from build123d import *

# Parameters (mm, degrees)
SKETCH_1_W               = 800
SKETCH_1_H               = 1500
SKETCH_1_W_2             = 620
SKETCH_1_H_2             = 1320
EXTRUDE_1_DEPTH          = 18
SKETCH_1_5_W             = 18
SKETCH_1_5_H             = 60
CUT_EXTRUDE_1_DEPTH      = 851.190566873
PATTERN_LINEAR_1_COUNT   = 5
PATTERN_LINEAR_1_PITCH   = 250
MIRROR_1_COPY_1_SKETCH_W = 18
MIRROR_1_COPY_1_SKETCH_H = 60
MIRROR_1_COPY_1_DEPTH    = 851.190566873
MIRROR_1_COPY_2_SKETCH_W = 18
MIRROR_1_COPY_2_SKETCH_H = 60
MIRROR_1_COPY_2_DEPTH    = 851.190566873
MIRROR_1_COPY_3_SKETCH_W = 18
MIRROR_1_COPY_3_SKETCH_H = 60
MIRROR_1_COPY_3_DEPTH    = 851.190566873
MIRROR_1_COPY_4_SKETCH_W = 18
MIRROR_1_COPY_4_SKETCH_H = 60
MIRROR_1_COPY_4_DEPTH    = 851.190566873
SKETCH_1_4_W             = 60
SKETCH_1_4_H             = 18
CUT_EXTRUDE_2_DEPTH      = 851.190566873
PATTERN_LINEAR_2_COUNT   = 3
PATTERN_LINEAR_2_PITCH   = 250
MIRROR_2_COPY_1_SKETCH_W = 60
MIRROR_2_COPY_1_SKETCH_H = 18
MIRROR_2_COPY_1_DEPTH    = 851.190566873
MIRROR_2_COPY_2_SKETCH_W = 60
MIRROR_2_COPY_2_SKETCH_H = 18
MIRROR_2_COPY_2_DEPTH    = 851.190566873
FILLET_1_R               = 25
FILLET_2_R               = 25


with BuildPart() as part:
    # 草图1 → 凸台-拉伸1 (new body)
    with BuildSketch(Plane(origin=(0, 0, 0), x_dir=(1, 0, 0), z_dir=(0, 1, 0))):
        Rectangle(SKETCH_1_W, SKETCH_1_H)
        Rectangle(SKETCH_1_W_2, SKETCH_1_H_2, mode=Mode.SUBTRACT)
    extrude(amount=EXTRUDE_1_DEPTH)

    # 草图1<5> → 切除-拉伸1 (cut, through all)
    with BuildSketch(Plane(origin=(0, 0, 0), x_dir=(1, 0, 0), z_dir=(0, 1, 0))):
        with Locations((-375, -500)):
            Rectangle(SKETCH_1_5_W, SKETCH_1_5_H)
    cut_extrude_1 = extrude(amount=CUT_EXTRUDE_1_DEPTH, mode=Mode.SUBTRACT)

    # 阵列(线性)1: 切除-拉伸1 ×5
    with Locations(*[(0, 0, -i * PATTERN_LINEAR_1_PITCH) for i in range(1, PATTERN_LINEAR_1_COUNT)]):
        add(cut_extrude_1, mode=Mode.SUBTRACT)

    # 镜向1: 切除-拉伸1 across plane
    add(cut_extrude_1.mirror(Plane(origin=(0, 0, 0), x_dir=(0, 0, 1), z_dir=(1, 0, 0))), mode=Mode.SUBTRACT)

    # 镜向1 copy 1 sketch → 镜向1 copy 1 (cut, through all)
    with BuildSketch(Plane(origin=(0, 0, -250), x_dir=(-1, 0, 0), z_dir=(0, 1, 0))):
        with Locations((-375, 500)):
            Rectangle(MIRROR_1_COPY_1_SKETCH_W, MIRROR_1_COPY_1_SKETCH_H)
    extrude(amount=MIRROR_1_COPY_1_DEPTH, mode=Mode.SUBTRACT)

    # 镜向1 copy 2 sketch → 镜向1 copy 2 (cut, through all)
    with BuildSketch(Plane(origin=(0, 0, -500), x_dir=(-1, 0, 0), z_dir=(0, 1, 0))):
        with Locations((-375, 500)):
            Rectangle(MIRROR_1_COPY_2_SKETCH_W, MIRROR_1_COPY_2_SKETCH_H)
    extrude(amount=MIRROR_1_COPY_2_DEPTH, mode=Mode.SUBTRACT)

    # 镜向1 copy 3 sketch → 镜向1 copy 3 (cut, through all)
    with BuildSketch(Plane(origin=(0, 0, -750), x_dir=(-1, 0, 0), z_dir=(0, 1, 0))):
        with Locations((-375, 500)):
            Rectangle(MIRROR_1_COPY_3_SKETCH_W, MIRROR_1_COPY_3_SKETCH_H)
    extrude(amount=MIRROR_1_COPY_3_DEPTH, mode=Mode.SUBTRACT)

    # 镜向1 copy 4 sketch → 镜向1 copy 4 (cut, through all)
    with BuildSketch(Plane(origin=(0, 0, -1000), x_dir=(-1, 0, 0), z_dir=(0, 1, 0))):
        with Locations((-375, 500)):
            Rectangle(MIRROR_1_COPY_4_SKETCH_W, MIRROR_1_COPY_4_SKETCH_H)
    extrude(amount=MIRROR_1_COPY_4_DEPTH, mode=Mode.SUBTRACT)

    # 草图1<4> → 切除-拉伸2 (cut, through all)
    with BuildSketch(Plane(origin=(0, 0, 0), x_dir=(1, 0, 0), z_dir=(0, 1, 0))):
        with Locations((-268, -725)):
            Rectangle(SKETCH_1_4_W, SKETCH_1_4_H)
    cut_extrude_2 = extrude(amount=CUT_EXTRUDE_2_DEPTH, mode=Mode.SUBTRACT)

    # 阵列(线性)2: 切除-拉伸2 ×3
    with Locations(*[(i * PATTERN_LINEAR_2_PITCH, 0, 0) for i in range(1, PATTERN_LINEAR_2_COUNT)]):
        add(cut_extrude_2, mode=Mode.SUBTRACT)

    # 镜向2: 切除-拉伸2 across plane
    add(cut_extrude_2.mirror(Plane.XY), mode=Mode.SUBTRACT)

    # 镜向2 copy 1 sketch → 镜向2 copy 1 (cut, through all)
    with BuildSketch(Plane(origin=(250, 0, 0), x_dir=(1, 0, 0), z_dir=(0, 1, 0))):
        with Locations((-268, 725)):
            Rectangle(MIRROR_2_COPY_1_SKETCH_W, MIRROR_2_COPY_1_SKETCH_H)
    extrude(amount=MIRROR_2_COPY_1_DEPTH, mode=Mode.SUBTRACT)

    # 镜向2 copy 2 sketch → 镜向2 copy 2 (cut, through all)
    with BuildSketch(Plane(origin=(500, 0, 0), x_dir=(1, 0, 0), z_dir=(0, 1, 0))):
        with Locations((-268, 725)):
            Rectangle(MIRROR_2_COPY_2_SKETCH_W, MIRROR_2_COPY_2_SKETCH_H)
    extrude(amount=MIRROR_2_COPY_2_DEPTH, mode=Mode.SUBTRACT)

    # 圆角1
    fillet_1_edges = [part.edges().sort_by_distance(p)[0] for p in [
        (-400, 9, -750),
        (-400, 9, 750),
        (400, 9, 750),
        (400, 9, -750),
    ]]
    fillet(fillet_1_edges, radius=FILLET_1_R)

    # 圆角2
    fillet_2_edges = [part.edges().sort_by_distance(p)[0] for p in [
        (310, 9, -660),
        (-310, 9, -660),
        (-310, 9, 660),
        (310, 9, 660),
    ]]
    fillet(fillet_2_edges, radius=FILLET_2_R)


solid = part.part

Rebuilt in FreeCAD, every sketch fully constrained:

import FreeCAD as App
import Part
import Sketcher
from FreeCAD import Vector


def edges_at(feature, points):
    """Names of the edges that pass closest to the given points."""
    edges = feature.Shape.Edges
    near = lambda p: min(range(len(edges)), key=lambda i: edges[i].distToShape(Part.Vertex(*p))[0])
    return sorted({f"Edge{near(p) + 1}" for p in points})

doc = App.newDocument("Part")
body = doc.addObject("PartDesign::Body", "Body")

sketch1 = body.newObject("Sketcher::SketchObject", "Sketch")
sketch1.AttachmentSupport = (doc.getObject("XZ_Plane"), [""])
sketch1.MapMode = "FlatFace"
sketch1.addGeometry([
    Part.LineSegment(Vector(-400, -750, 0), Vector(-400, 750, 0)),
    Part.LineSegment(Vector(-400, 750, 0), Vector(400, 750, 0)),
    Part.LineSegment(Vector(400, 750, 0), Vector(400, -750, 0)),
    Part.LineSegment(Vector(400, -750, 0), Vector(-400, -750, 0)),
    Part.LineSegment(Vector(310, 660, 0), Vector(-310, 660, 0)),
    Part.LineSegment(Vector(-310, 660, 0), Vector(-310, -660, 0)),
    Part.LineSegment(Vector(-310, -660, 0), Vector(310, -660, 0)),
    Part.LineSegment(Vector(310, -660, 0), Vector(310, 660, 0)),
], False)
sketch1.addConstraint([
    Sketcher.Constraint("Coincident", 0, 2, 1, 1),
    Sketcher.Constraint("Coincident", 1, 2, 2, 1),
    Sketcher.Constraint("Coincident", 2, 2, 3, 1),
    Sketcher.Constraint("Coincident", 3, 2, 0, 1),
    Sketcher.Constraint("Coincident", 4, 2, 5, 1),
    Sketcher.Constraint("Coincident", 5, 2, 6, 1),
    Sketcher.Constraint("Coincident", 6, 2, 7, 1),
    Sketcher.Constraint("Coincident", 7, 2, 4, 1),
    Sketcher.Constraint("Vertical", 0),
    Sketcher.Constraint("Horizontal", 1),
    Sketcher.Constraint("Vertical", 2),
    Sketcher.Constraint("Horizontal", 3),
    Sketcher.Constraint("Horizontal", 4),
    Sketcher.Constraint("Vertical", 5),
    Sketcher.Constraint("Horizontal", 6),
    Sketcher.Constraint("Vertical", 7),
    Sketcher.Constraint("Symmetric", 0, 2, 2, 2, -1, 1),
    Sketcher.Constraint("Symmetric", 4, 2, 6, 2, -1, 1),
    Sketcher.Constraint("DistanceX", 1, 1, 1, 2, 800.0),
    Sketcher.Constraint("DistanceX", 4, 2, 4, 1, 620.0),
    Sketcher.Constraint("DistanceY", 0, 1, 0, 2, 1500.0),
    Sketcher.Constraint("DistanceY", 5, 2, 5, 1, 1320.0),
])
pad1 = body.newObject("PartDesign::Pad", "Pad")
pad1.Profile = sketch1
pad1.Length = 18
pad1.Reversed = True

sketch2 = body.newObject("Sketcher::SketchObject", "Sketch001")
sketch2.AttachmentSupport = (doc.getObject("XZ_Plane"), [""])
sketch2.MapMode = "FlatFace"
sketch2.addGeometry([
    Part.LineSegment(Vector(-384, 470, 0), Vector(-384, 530, 0)),
    Part.LineSegment(Vector(-384, 530, 0), Vector(-366, 530, 0)),
    Part.LineSegment(Vector(-366, 530, 0), Vector(-366, 470, 0)),
    Part.LineSegment(Vector(-366, 470, 0), Vector(-384, 470, 0)),
], False)
sketch2.addConstraint([
    Sketcher.Constraint("Coincident", 0, 2, 1, 1),
    Sketcher.Constraint("Coincident", 1, 2, 2, 1),
    Sketcher.Constraint("Coincident", 2, 2, 3, 1),
    Sketcher.Constraint("Coincident", 3, 2, 0, 1),
    Sketcher.Constraint("Vertical", 0),
    Sketcher.Constraint("Horizontal", 1),
    Sketcher.Constraint("Vertical", 2),
    Sketcher.Constraint("Horizontal", 3),
    Sketcher.Constraint("DistanceX", 1, 1, 1, 2, 18.0),
    Sketcher.Constraint("DistanceY", 0, 1, 0, 2, 60.0),
    Sketcher.Constraint("DistanceX", 0, 2, -1, 1, 384.0),
    Sketcher.Constraint("DistanceY", -1, 1, 0, 2, 530.0),
])
pocket1 = body.newObject("PartDesign::Pocket", "Pocket")
pocket1.Profile = sketch2
pocket1.Type = "ThroughAll"
doc.recompute()

linearpattern = body.newObject("PartDesign::LinearPattern", "LinearPattern")
linearpattern.Originals = [pocket1]
linearpattern.Direction = (doc.getObject("Z_Axis"), [""])
linearpattern.Mode = "offset"
linearpattern.Offset = 250
linearpattern.Occurrences = 5
linearpattern.Reversed = True
body.Tip = linearpattern
doc.recompute()

mirrored = body.newObject("PartDesign::Mirrored", "Mirrored")
mirrored.Originals = [pocket1]
mirrored.MirrorPlane = (doc.getObject("YZ_Plane"), [""])
body.Tip = mirrored

sketch3 = body.newObject("Sketcher::SketchObject", "Sketch002")
sketch3.AttachmentSupport = (doc.getObject("XZ_Plane"), [""])
sketch3.MapMode = "FlatFace"
sketch3.addGeometry([
    Part.LineSegment(Vector(384, 280, 0), Vector(384, 220, 0)),
    Part.LineSegment(Vector(384, 220, 0), Vector(366, 220, 0)),
    Part.LineSegment(Vector(366, 220, 0), Vector(366, 280, 0)),
    Part.LineSegment(Vector(366, 280, 0), Vector(384, 280, 0)),
], False)
sketch3.addConstraint([
    Sketcher.Constraint("Coincident", 0, 2, 1, 1),
    Sketcher.Constraint("Coincident", 1, 2, 2, 1),
    Sketcher.Constraint("Coincident", 2, 2, 3, 1),
    Sketcher.Constraint("Coincident", 3, 2, 0, 1),
    Sketcher.Constraint("Vertical", 0),
    Sketcher.Constraint("Horizontal", 1),
    Sketcher.Constraint("Vertical", 2),
    Sketcher.Constraint("Horizontal", 3),
    Sketcher.Constraint("DistanceX", 1, 2, 1, 1, 18.0),
    Sketcher.Constraint("DistanceY", 0, 2, 0, 1, 60.0),
    Sketcher.Constraint("DistanceX", -1, 1, 0, 2, 384.0),
    Sketcher.Constraint("DistanceY", -1, 1, 0, 2, 220.0),
])
pocket2 = body.newObject("PartDesign::Pocket", "Pocket001")
pocket2.Profile = sketch3
pocket2.Type = "ThroughAll"

sketch4 = body.newObject("Sketcher::SketchObject", "Sketch003")
sketch4.AttachmentSupport = (doc.getObject("XZ_Plane"), [""])
sketch4.MapMode = "FlatFace"
sketch4.addGeometry([
    Part.LineSegment(Vector(384, 30, 0), Vector(384, -30, 0)),
    Part.LineSegment(Vector(384, -30, 0), Vector(366, -30, 0)),
    Part.LineSegment(Vector(366, -30, 0), Vector(366, 30, 0)),
    Part.LineSegment(Vector(366, 30, 0), Vector(384, 30, 0)),
], False)
sketch4.addConstraint([
    Sketcher.Constraint("Coincident", 0, 2, 1, 1),
    Sketcher.Constraint("Coincident", 1, 2, 2, 1),
    Sketcher.Constraint("Coincident", 2, 2, 3, 1),
    Sketcher.Constraint("Coincident", 3, 2, 0, 1),
    Sketcher.Constraint("Vertical", 0),
    Sketcher.Constraint("Horizontal", 1),
    Sketcher.Constraint("Vertical", 2),
    Sketcher.Constraint("Horizontal", 3),
    Sketcher.Constraint("DistanceX", 1, 2, 1, 1, 18.0),
    Sketcher.Constraint("DistanceY", 0, 2, 0, 1, 60.0),
    Sketcher.Constraint("DistanceX", -1, 1, 0, 2, 384.0),
    Sketcher.Constraint("DistanceY", 0, 2, -1, 1, 30.0),
])
pocket3 = body.newObject("PartDesign::Pocket", "Pocket002")
pocket3.Profile = sketch4
pocket3.Type = "ThroughAll"

sketch5 = body.newObject("Sketcher::SketchObject", "Sketch004")
sketch5.AttachmentSupport = (doc.getObject("XZ_Plane"), [""])
sketch5.MapMode = "FlatFace"
sketch5.addGeometry([
    Part.LineSegment(Vector(384, -220, 0), Vector(384, -280, 0)),
    Part.LineSegment(Vector(384, -280, 0), Vector(366, -280, 0)),
    Part.LineSegment(Vector(366, -280, 0), Vector(366, -220, 0)),
    Part.LineSegment(Vector(366, -220, 0), Vector(384, -220, 0)),
], False)
sketch5.addConstraint([
    Sketcher.Constraint("Coincident", 0, 2, 1, 1),
    Sketcher.Constraint("Coincident", 1, 2, 2, 1),
    Sketcher.Constraint("Coincident", 2, 2, 3, 1),
    Sketcher.Constraint("Coincident", 3, 2, 0, 1),
    Sketcher.Constraint("Vertical", 0),
    Sketcher.Constraint("Horizontal", 1),
    Sketcher.Constraint("Vertical", 2),
    Sketcher.Constraint("Horizontal", 3),
    Sketcher.Constraint("DistanceX", 1, 2, 1, 1, 18.0),
    Sketcher.Constraint("DistanceY", 0, 2, 0, 1, 60.0),
    Sketcher.Constraint("DistanceX", -1, 1, 0, 2, 384.0),
    Sketcher.Constraint("DistanceY", 0, 2, -1, 1, 280.0),
])
pocket4 = body.newObject("PartDesign::Pocket", "Pocket003")
pocket4.Profile = sketch5
pocket4.Type = "ThroughAll"

sketch6 = body.newObject("Sketcher::SketchObject", "Sketch005")
sketch6.AttachmentSupport = (doc.getObject("XZ_Plane"), [""])
sketch6.MapMode = "FlatFace"
sketch6.addGeometry([
    Part.LineSegment(Vector(384, -470, 0), Vector(384, -530, 0)),
    Part.LineSegment(Vector(384, -530, 0), Vector(366, -530, 0)),
    Part.LineSegment(Vector(366, -530, 0), Vector(366, -470, 0)),
    Part.LineSegment(Vector(366, -470, 0), Vector(384, -470, 0)),
], False)
sketch6.addConstraint([
    Sketcher.Constraint("Coincident", 0, 2, 1, 1),
    Sketcher.Constraint("Coincident", 1, 2, 2, 1),
    Sketcher.Constraint("Coincident", 2, 2, 3, 1),
    Sketcher.Constraint("Coincident", 3, 2, 0, 1),
    Sketcher.Constraint("Vertical", 0),
    Sketcher.Constraint("Horizontal", 1),
    Sketcher.Constraint("Vertical", 2),
    Sketcher.Constraint("Horizontal", 3),
    Sketcher.Constraint("DistanceX", 1, 2, 1, 1, 18.0),
    Sketcher.Constraint("DistanceY", 0, 2, 0, 1, 60.0),
    Sketcher.Constraint("DistanceX", -1, 1, 0, 2, 384.0),
    Sketcher.Constraint("DistanceY", 0, 2, -1, 1, 530.0),
])
pocket5 = body.newObject("PartDesign::Pocket", "Pocket004")
pocket5.Profile = sketch6
pocket5.Type = "ThroughAll"

sketch7 = body.newObject("Sketcher::SketchObject", "Sketch006")
sketch7.AttachmentSupport = (doc.getObject("XZ_Plane"), [""])
sketch7.MapMode = "FlatFace"
sketch7.addGeometry([
    Part.LineSegment(Vector(-298, 716, 0), Vector(-298, 734, 0)),
    Part.LineSegment(Vector(-298, 734, 0), Vector(-238, 734, 0)),
    Part.LineSegment(Vector(-238, 734, 0), Vector(-238, 716, 0)),
    Part.LineSegment(Vector(-238, 716, 0), Vector(-298, 716, 0)),
], False)
sketch7.addConstraint([
    Sketcher.Constraint("Coincident", 0, 2, 1, 1),
    Sketcher.Constraint("Coincident", 1, 2, 2, 1),
    Sketcher.Constraint("Coincident", 2, 2, 3, 1),
    Sketcher.Constraint("Coincident", 3, 2, 0, 1),
    Sketcher.Constraint("Vertical", 0),
    Sketcher.Constraint("Horizontal", 1),
    Sketcher.Constraint("Vertical", 2),
    Sketcher.Constraint("Horizontal", 3),
    Sketcher.Constraint("DistanceX", 1, 1, 1, 2, 60.0),
    Sketcher.Constraint("DistanceY", 0, 1, 0, 2, 18.0),
    Sketcher.Constraint("DistanceX", 0, 2, -1, 1, 298.0),
    Sketcher.Constraint("DistanceY", -1, 1, 0, 2, 734.0),
])
pocket6 = body.newObject("PartDesign::Pocket", "Pocket005")
pocket6.Profile = sketch7
pocket6.Type = "ThroughAll"
doc.recompute()

linearpattern2 = body.newObject("PartDesign::LinearPattern", "LinearPattern001")
linearpattern2.Originals = [pocket6]
linearpattern2.Direction = (doc.getObject("X_Axis"), [""])
linearpattern2.Mode = "offset"
linearpattern2.Offset = 250
linearpattern2.Occurrences = 3
body.Tip = linearpattern2
doc.recompute()

mirrored2 = body.newObject("PartDesign::Mirrored", "Mirrored001")
mirrored2.Originals = [pocket6]
mirrored2.MirrorPlane = (doc.getObject("XY_Plane"), [""])
body.Tip = mirrored2

sketch8 = body.newObject("Sketcher::SketchObject", "Sketch007")
sketch8.AttachmentSupport = (doc.getObject("XZ_Plane"), [""])
sketch8.MapMode = "FlatFace"
sketch8.addGeometry([
    Part.LineSegment(Vector(-48, -734, 0), Vector(-48, -716, 0)),
    Part.LineSegment(Vector(-48, -716, 0), Vector(12, -716, 0)),
    Part.LineSegment(Vector(12, -716, 0), Vector(12, -734, 0)),
    Part.LineSegment(Vector(12, -734, 0), Vector(-48, -734, 0)),
], False)
sketch8.addConstraint([
    Sketcher.Constraint("Coincident", 0, 2, 1, 1),
    Sketcher.Constraint("Coincident", 1, 2, 2, 1),
    Sketcher.Constraint("Coincident", 2, 2, 3, 1),
    Sketcher.Constraint("Coincident", 3, 2, 0, 1),
    Sketcher.Constraint("Vertical", 0),
    Sketcher.Constraint("Horizontal", 1),
    Sketcher.Constraint("Vertical", 2),
    Sketcher.Constraint("Horizontal", 3),
    Sketcher.Constraint("DistanceX", 1, 1, 1, 2, 60.0),
    Sketcher.Constraint("DistanceY", 0, 1, 0, 2, 18.0),
    Sketcher.Constraint("DistanceX", 0, 2, -1, 1, 48.0),
    Sketcher.Constraint("DistanceY", 0, 2, -1, 1, 716.0),
])
pocket7 = body.newObject("PartDesign::Pocket", "Pocket006")
pocket7.Profile = sketch8
pocket7.Type = "ThroughAll"

sketch9 = body.newObject("Sketcher::SketchObject", "Sketch008")
sketch9.AttachmentSupport = (doc.getObject("XZ_Plane"), [""])
sketch9.MapMode = "FlatFace"
sketch9.addGeometry([
    Part.LineSegment(Vector(202, -734, 0), Vector(202, -716, 0)),
    Part.LineSegment(Vector(202, -716, 0), Vector(262, -716, 0)),
    Part.LineSegment(Vector(262, -716, 0), Vector(262, -734, 0)),
    Part.LineSegment(Vector(262, -734, 0), Vector(202, -734, 0)),
], False)
sketch9.addConstraint([
    Sketcher.Constraint("Coincident", 0, 2, 1, 1),
    Sketcher.Constraint("Coincident", 1, 2, 2, 1),
    Sketcher.Constraint("Coincident", 2, 2, 3, 1),
    Sketcher.Constraint("Coincident", 3, 2, 0, 1),
    Sketcher.Constraint("Vertical", 0),
    Sketcher.Constraint("Horizontal", 1),
    Sketcher.Constraint("Vertical", 2),
    Sketcher.Constraint("Horizontal", 3),
    Sketcher.Constraint("DistanceX", 1, 1, 1, 2, 60.0),
    Sketcher.Constraint("DistanceY", 0, 1, 0, 2, 18.0),
    Sketcher.Constraint("DistanceX", -1, 1, 0, 2, 202.0),
    Sketcher.Constraint("DistanceY", 0, 2, -1, 1, 716.0),
])
pocket8 = body.newObject("PartDesign::Pocket", "Pocket007")
pocket8.Profile = sketch9
pocket8.Type = "ThroughAll"
doc.recompute()

fillet = body.newObject("PartDesign::Fillet", "Fillet")
fillet.Base = (pocket8, edges_at(pocket8, [
    (-400, 9, -750),
    (-400, 9, 750),
    (400, 9, 750),
    (400, 9, -750),
]))
fillet.Radius = 25
doc.recompute()

fillet2 = body.newObject("PartDesign::Fillet", "Fillet001")
fillet2.Base = (fillet, edges_at(fillet, [
    (310, 9, -660),
    (-310, 9, -660),
    (-310, 9, 660),
    (310, 9, 660),
]))
fillet2.Radius = 25

doc.recompute()
